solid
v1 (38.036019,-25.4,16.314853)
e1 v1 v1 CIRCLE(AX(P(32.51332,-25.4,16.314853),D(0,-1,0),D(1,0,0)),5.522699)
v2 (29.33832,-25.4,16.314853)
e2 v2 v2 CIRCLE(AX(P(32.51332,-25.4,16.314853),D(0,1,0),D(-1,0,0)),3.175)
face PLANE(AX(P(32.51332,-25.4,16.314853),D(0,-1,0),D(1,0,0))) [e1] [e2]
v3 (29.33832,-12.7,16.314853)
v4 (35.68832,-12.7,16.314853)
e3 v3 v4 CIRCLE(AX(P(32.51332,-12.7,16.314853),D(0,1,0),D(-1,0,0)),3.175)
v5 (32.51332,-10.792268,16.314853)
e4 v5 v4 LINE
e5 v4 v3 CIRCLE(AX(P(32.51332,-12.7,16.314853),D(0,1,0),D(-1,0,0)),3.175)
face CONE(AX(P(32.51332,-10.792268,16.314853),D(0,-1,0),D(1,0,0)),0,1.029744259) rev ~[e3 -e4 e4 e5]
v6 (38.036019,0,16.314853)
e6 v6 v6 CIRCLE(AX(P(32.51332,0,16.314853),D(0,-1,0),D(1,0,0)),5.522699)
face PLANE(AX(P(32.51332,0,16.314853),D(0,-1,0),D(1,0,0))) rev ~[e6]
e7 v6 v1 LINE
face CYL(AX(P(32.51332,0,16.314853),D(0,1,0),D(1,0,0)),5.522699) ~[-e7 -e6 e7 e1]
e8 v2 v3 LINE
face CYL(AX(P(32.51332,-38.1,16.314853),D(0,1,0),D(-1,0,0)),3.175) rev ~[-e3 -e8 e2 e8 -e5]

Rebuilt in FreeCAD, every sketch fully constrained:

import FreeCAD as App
import Part
import Sketcher

V = App.Vector
Q = App.Units.Quantity

doc = App.newDocument("Part")
body = doc.addObject("PartDesign::Body", "Body")

# Sketch on XZ plane
sketch1 = body.newObject("Sketcher::SketchObject", "Sketch")
sketch1.AttachmentSupport = (doc.getObject("XZ_Plane"), [""])
sketch1.MapMode = "FlatFace"
sketch1.addGeometry(Part.Circle(V(33, 16, 0), V(0, 0, 1), 6), False)
sketch1.addConstraint(Sketcher.Constraint("Diameter", 0, 11.045397))
sketch1.addConstraint(Sketcher.Constraint("DistanceX", -1, 1, 0, 3, 32.51332))
sketch1.addConstraint(Sketcher.Constraint("DistanceY", -1, 1, 0, 3, 16.314853))
pad1 = body.newObject("PartDesign::Pad", "Pad")
pad1.Profile = sketch1
pad1.Length = Q("1 in")

# Sketch on XZ plane
sketch2 = body.newObject("Sketcher::SketchObject", "Sketch001")
sketch2.AttachmentSupport = (doc.getObject("XZ_Plane"), [""])
sketch2.MapMode = "FlatFace"
sketch2.AttachmentOffset = App.Placement(V(0, 0, 1 * 25.4), App.Rotation())
sketch2.addGeometry(Part.Circle(V(32.5, 16.3, 0), V(0, 0, 1), 3.2), False)
sketch2.addConstraint(Sketcher.Constraint("Diameter", 0, Q("0.25 in")))
sketch2.addConstraint(Sketcher.Constraint("DistanceX", -1, 1, 0, 3, 32.51332))
sketch2.addConstraint(Sketcher.Constraint("DistanceY", -1, 1, 0, 3, 16.314853))
doc.recompute()
hole = body.newObject("PartDesign::Hole", "Hole")
hole.Profile = sketch2
hole.ThreadType = "None"
hole.Diameter = Q("0.25 in")
hole.DepthType = "Dimension"
hole.Depth = Q("0.5 in")
hole.DrillPoint = "Angled"
hole.DrillPointAngle = 118

doc.recompute()
